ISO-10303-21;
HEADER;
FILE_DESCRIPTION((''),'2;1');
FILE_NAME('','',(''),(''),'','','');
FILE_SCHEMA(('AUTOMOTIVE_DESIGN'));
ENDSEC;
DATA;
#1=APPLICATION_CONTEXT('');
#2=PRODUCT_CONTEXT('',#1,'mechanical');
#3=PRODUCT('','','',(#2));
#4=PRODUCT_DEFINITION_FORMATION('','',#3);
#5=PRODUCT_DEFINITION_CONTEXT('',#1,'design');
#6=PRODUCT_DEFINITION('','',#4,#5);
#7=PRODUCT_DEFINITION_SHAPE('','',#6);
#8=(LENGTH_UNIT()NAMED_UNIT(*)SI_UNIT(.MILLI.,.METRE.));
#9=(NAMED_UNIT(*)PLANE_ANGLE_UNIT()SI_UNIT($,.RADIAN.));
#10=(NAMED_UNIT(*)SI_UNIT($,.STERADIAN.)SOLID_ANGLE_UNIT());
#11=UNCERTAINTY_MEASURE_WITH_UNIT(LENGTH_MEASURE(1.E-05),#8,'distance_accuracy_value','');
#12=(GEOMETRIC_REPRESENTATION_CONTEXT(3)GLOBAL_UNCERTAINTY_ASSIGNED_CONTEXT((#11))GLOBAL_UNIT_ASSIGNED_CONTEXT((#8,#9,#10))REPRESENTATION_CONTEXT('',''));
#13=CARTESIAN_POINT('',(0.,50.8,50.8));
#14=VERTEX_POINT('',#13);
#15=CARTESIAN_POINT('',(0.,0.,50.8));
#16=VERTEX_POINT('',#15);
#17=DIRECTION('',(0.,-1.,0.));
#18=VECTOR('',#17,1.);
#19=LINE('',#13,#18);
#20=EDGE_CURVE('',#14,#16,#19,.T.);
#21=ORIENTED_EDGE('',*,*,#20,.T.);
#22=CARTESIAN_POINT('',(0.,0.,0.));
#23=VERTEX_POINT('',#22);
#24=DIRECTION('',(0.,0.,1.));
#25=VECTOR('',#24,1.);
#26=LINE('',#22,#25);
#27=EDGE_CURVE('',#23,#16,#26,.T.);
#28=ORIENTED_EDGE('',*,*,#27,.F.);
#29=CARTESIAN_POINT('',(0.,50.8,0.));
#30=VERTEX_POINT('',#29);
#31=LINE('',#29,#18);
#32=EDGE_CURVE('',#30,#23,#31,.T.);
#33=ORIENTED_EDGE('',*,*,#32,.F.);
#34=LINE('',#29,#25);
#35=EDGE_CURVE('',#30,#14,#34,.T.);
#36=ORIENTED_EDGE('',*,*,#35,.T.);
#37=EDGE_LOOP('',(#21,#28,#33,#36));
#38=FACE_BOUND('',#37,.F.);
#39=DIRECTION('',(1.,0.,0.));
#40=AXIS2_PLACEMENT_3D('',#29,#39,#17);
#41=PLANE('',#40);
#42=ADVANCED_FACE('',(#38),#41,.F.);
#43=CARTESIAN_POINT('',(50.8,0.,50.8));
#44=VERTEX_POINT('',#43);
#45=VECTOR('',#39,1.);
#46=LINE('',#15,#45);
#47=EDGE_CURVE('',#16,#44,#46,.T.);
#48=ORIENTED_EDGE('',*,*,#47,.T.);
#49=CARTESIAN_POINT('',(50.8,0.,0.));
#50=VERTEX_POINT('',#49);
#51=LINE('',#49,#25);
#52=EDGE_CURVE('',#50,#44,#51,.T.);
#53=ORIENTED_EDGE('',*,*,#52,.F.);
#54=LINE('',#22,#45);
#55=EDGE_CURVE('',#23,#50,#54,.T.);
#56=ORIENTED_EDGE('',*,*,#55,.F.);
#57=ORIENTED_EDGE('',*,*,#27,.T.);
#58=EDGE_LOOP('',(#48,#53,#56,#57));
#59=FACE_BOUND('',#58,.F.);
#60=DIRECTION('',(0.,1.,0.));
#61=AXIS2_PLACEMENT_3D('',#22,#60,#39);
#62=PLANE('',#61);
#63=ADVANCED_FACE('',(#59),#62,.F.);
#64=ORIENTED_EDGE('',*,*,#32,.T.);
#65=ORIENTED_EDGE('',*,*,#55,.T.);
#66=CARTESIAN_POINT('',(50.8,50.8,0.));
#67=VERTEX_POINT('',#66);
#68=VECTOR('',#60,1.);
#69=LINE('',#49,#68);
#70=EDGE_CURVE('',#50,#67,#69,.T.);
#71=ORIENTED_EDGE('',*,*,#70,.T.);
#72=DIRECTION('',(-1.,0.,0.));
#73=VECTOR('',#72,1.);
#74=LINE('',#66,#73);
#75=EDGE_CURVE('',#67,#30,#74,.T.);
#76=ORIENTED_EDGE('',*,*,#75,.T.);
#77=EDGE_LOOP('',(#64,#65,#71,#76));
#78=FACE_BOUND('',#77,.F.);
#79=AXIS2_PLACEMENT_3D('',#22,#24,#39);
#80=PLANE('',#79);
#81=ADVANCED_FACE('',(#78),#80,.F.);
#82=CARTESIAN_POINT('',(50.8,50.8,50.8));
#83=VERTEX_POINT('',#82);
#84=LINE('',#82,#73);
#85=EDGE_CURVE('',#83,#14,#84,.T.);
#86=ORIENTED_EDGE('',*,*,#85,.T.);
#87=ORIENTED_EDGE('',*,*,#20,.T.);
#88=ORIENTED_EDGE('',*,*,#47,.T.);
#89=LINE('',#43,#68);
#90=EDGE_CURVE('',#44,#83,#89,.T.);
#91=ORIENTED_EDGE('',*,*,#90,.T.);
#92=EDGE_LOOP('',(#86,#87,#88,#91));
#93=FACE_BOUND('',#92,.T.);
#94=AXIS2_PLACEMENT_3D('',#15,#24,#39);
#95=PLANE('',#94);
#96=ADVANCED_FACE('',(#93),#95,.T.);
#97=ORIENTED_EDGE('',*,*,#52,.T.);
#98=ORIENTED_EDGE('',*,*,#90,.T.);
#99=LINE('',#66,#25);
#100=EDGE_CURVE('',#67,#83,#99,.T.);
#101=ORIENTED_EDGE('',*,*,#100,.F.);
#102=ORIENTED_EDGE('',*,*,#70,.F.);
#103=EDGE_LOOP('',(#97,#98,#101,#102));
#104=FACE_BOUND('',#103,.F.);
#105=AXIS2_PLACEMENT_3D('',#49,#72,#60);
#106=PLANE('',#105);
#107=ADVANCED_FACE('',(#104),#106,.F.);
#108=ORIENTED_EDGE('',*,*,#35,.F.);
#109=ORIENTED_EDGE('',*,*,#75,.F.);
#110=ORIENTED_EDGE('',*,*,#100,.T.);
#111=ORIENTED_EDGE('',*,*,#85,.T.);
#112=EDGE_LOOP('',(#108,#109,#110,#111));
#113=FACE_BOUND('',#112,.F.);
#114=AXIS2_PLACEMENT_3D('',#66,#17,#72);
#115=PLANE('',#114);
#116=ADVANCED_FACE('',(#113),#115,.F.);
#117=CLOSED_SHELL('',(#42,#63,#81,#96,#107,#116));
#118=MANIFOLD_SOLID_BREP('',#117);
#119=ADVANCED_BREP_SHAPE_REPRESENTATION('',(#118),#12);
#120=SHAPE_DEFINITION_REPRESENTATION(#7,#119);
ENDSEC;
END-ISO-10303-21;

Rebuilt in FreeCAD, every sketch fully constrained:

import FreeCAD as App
import Part
import Sketcher

V = App.Vector
Q = App.Units.Quantity

doc = App.newDocument("Part")
body = doc.addObject("PartDesign::Body", "Body")

sketch1 = body.newObject("Sketcher::SketchObject", "Sketch")
sketch1.AttachmentSupport = (doc.getObject("XY_Plane"), [""])
sketch1.MapMode = "FlatFace"
sketch1.addGeometry([
    Part.LineSegment(V(0, 51, 0), V(0, 0, 0)),
    Part.LineSegment(V(0, 0, 0), V(51, 0, 0)),
    Part.LineSegment(V(51, 0, 0), V(51, 51, 0)),
    Part.LineSegment(V(51, 51, 0), V(0, 51, 0)),
], False)
sketch1.addConstraint([
    Sketcher.Constraint("Coincident", 0, 2, 1, 1),
    Sketcher.Constraint("Coincident", 1, 2, 2, 1),
    Sketcher.Constraint("Coincident", 2, 2, 3, 1),
    Sketcher.Constraint("Coincident", 3, 2, 0, 1),
    Sketcher.Constraint("Vertical", 0),
    Sketcher.Constraint("Horizontal", 1),
    Sketcher.Constraint("Vertical", 2),
    Sketcher.Constraint("Horizontal", 3),
    Sketcher.Constraint("Coincident", 0, 2, -1, 1),
    Sketcher.Constraint("Equal", 3, 0),
    Sketcher.Constraint("DistanceX", 1, 1, 1, 2, Q("2 in")),
])
pad1 = body.newObject("PartDesign::Pad", "Pad")
pad1.Profile = sketch1
pad1.Length = Q("2 in")

doc.recompute()
